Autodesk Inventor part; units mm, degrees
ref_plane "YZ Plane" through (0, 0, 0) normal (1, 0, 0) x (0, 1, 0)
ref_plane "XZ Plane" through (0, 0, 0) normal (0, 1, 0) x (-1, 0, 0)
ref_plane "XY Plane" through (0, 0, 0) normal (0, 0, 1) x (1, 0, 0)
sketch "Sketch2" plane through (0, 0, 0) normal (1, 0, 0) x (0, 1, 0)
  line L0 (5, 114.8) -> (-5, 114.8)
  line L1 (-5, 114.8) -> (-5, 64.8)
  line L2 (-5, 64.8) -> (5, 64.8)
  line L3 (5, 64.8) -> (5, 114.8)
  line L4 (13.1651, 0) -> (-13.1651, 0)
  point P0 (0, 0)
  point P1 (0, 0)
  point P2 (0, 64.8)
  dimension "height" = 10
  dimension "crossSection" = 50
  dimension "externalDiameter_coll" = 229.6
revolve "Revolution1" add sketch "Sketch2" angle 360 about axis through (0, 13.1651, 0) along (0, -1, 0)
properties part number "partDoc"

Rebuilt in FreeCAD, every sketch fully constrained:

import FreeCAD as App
import Part
import Sketcher

V = App.Vector
Q = App.Units.Quantity


def add_polygon(sketch, points):
    """Adds a closed chain of lines whose ends are joined by coincident constraints."""
    first, n = sketch.GeometryCount, len(points)
    for a, b in zip(points, points[1:] + points[:1]):
        sketch.addGeometry(Part.LineSegment(App.Vector(*a, 0), App.Vector(*b, 0)), False)
    for i in range(n):
        sketch.addConstraint(Sketcher.Constraint("Coincident", first + i, 2, first + (i + 1) % n, 1))

doc = App.newDocument("Part")
params = doc.addObject("Spreadsheet::Sheet", "Params")
for row, (alias, value) in enumerate([
    ("sketch1_width", "10 mm"),
    ("sketch1_height", "50 mm"),
    ("revolution_angle", "360 deg"),
], start=1):
    params.set(f"A{row}", alias)
    params.set(f"B{row}", "=" + value)
    params.setAlias(f"B{row}", alias)

body = doc.addObject("PartDesign::Body", "Body")

sketch1 = body.newObject("Sketcher::SketchObject", "Sketch")
sketch1.AttachmentSupport = (doc.getObject("YZ_Plane"), [""])
sketch1.MapMode = "FlatFace"
add_polygon(sketch1, [(5, 65), (5, 115), (-5, 115), (-5, 65)])
sketch1.addConstraint([
    Sketcher.Constraint("Vertical", 0),
    Sketcher.Constraint("Horizontal", 1),
    Sketcher.Constraint("Vertical", 2),
    Sketcher.Constraint("Horizontal", 3),
    Sketcher.Constraint("DistanceX", 1, 2, 1, 1, Q("10 mm")),
    Sketcher.Constraint("DistanceY", 0, 1, 0, 2, Q("50 mm")),
    Sketcher.Constraint("DistanceX", -1, 1, 0, 2, Q("5 mm")),
    Sketcher.Constraint("DistanceY", -1, 1, 0, 2, Q("114.8 mm")),
])
sketch1.setExpression("Constraints[8]", "Params.sketch1_width")
sketch1.setExpression("Constraints[9]", "Params.sketch1_height")
revolution = body.newObject("PartDesign::Revolution", "Revolution")
revolution.Profile = sketch1
revolution.ReferenceAxis = (sketch1, ["H_Axis"])
revolution.setExpression("Angle", "Params.revolution_angle")

doc.recompute()
